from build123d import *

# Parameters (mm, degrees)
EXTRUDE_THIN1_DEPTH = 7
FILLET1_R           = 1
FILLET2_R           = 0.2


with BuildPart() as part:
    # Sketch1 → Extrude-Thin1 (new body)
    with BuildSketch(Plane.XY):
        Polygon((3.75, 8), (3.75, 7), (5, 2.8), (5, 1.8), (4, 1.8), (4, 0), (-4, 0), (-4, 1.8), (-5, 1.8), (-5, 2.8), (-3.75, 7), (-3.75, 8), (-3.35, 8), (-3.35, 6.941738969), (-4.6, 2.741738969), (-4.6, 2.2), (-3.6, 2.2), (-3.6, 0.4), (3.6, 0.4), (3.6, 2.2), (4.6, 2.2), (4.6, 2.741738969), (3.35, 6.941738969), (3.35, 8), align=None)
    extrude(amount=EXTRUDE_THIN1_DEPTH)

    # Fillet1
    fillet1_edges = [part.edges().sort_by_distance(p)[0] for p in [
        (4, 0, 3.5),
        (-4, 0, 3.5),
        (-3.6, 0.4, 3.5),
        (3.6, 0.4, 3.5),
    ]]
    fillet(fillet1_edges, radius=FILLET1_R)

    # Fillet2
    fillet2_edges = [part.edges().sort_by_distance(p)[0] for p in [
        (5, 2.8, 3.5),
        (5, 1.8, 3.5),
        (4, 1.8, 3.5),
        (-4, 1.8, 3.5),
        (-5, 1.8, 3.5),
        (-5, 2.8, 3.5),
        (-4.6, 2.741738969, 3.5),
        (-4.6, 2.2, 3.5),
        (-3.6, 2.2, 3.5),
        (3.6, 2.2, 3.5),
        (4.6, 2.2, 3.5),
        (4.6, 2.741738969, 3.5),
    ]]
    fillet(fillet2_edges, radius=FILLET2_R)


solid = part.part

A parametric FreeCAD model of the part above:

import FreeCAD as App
import Part
import Sketcher

V = App.Vector


def edges_at(feature, points):
    """Names of the edges that pass closest to the given points."""
    edges = feature.Shape.Edges
    near = lambda p: min(range(len(edges)), key=lambda i: edges[i].distToShape(Part.Vertex(*p))[0])
    return sorted({f"Edge{near(p) + 1}" for p in points})

doc = App.newDocument("Part")
body = doc.addObject("PartDesign::Body", "Body")

sketch1 = body.newObject("Sketcher::SketchObject", "Sketch")
sketch1.AttachmentSupport = (doc.getObject("XY_Plane"), [""])
sketch1.MapMode = "FlatFace"
sketch1.addGeometry([
    Part.LineSegment(V(3.75, 7, 0), V(3.75, 8, 0)),
    Part.LineSegment(V(3.75, 8, 0), V(3.35, 8, 0)),
    Part.LineSegment(V(3.35, 8, 0), V(3.35, 6.941739, 0)),
    Part.LineSegment(V(3.35, 6.941739, 0), V(4.6, 2.741739, 0)),
    Part.LineSegment(V(4.6, 2.741739, 0), V(4.6, 2.2, 0)),
    Part.LineSegment(V(4.6, 2.2, 0), V(3.6, 2.2, 0)),
    Part.LineSegment(V(3.6, 2.2, 0), V(3.6, 0.4, 0)),
    Part.LineSegment(V(3.6, 0.4, 0), V(-3.6, 0.4, 0)),
    Part.LineSegment(V(-3.6, 0.4, 0), V(-3.6, 2.2, 0)),
    Part.LineSegment(V(-3.6, 2.2, 0), V(-4.6, 2.2, 0)),
    Part.LineSegment(V(-4.6, 2.2, 0), V(-4.6, 2.741739, 0)),
    Part.LineSegment(V(-4.6, 2.741739, 0), V(-3.35, 6.941739, 0)),
    Part.LineSegment(V(-3.35, 6.941739, 0), V(-3.35, 8, 0)),
    Part.LineSegment(V(-3.35, 8, 0), V(-3.75, 8, 0)),
    Part.LineSegment(V(-3.75, 8, 0), V(-3.75, 7, 0)),
    Part.LineSegment(V(-3.75, 7, 0), V(-5, 2.8, 0)),
    Part.LineSegment(V(-5, 2.8, 0), V(-5, 1.8, 0)),
    Part.LineSegment(V(-5, 1.8, 0), V(-4, 1.8, 0)),
    Part.LineSegment(V(-4, 1.8, 0), V(-4, 0, 0)),
    Part.LineSegment(V(-4, 0, 0), V(4, 0, 0)),
    Part.LineSegment(V(4, 0, 0), V(4, 1.8, 0)),
    Part.LineSegment(V(4, 1.8, 0), V(5, 1.8, 0)),
    Part.LineSegment(V(5, 1.8, 0), V(5, 2.8, 0)),
    Part.LineSegment(V(5, 2.8, 0), V(3.75, 7, 0)),
], False)
sketch1.addConstraint([
    Sketcher.Constraint("Coincident", 0, 2, 1, 1),
    Sketcher.Constraint("Coincident", 1, 2, 2, 1),
    Sketcher.Constraint("Coincident", 2, 2, 3, 1),
    Sketcher.Constraint("Coincident", 3, 2, 4, 1),
    Sketcher.Constraint("Coincident", 4, 2, 5, 1),
    Sketcher.Constraint("Coincident", 5, 2, 6, 1),
    Sketcher.Constraint("Coincident", 6, 2, 7, 1),
    Sketcher.Constraint("Coincident", 7, 2, 8, 1),
    Sketcher.Constraint("Coincident", 8, 2, 9, 1),
    Sketcher.Constraint("Coincident", 9, 2, 10, 1),
    Sketcher.Constraint("Coincident", 10, 2, 11, 1),
    Sketcher.Constraint("Coincident", 11, 2, 12, 1),
    Sketcher.Constraint("Coincident", 12, 2, 13, 1),
    Sketcher.Constraint("Coincident", 13, 2, 14, 1),
    Sketcher.Constraint("Coincident", 14, 2, 15, 1),
    Sketcher.Constraint("Coincident", 15, 2, 16, 1),
    Sketcher.Constraint("Coincident", 16, 2, 17, 1),
    Sketcher.Constraint("Coincident", 17, 2, 18, 1),
    Sketcher.Constraint("Coincident", 18, 2, 19, 1),
    Sketcher.Constraint("Coincident", 19, 2, 20, 1),
    Sketcher.Constraint("Coincident", 20, 2, 21, 1),
    Sketcher.Constraint("Coincident", 21, 2, 22, 1),
    Sketcher.Constraint("Coincident", 22, 2, 23, 1),
    Sketcher.Constraint("Coincident", 23, 2, 0, 1),
    Sketcher.Constraint("Vertical", 0),
    Sketcher.Constraint("Horizontal", 1),
    Sketcher.Constraint("Vertical", 2),
    Sketcher.Constraint("Vertical", 4),
    Sketcher.Constraint("Horizontal", 5),
    Sketcher.Constraint("Vertical", 6),
    Sketcher.Constraint("Horizontal", 7),
    Sketcher.Constraint("Vertical", 8),
    Sketcher.Constraint("Horizontal", 9),
    Sketcher.Constraint("Vertical", 10),
    Sketcher.Constraint("Vertical", 12),
    Sketcher.Constraint("Horizontal", 13),
    Sketcher.Constraint("Vertical", 14),
    Sketcher.Constraint("Vertical", 16),
    Sketcher.Constraint("Horizontal", 17),
    Sketcher.Constraint("Vertical", 18),
    Sketcher.Constraint("Horizontal", 19),
    Sketcher.Constraint("Vertical", 20),
    Sketcher.Constraint("Horizontal", 21),
    Sketcher.Constraint("Vertical", 22),
    Sketcher.Constraint("Symmetric", 18, 2, 19, 2, -1, 1),
    Sketcher.Constraint("Symmetric", 5, 2, 8, 2, -2),
    Sketcher.Constraint("Symmetric", 3, 2, 10, 2, -2),
    Sketcher.Constraint("Symmetric", 2, 2, 11, 2, -2),
    Sketcher.Constraint("Symmetric", 0, 2, 13, 2, -2),
    Sketcher.Constraint("Symmetric", 16, 2, 21, 2, -2),
    Sketcher.Constraint("Parallel", 11, 15),
    Sketcher.Constraint("Parallel", 3, 23),
    Sketcher.Constraint("Horizontal", 15, 2, 22, 2),
    Sketcher.Constraint("Equal", 9, 17),
    Sketcher.Constraint("Equal", 21, 0),
    Sketcher.Constraint("Equal", 14, 16),
    Sketcher.Constraint("Equal", 8, 18),
    Sketcher.Constraint("Equal", 11, 15),
    Sketcher.Constraint("DistanceX", 5, 2, 5, 1, 1.0),
    Sketcher.Constraint("DistanceX", 19, 1, 19, 2, 8.0),
    Sketcher.Constraint("DistanceX", 1, 2, 1, 1, 0.4),
    Sketcher.Constraint("DistanceY", 6, 2, 6, 1, 1.8),
    Sketcher.Constraint("DistanceY", -1, 1, 0, 2, 8.0),
    Sketcher.Constraint("DistanceY", -1, 1, 4, 2, 2.2),
    Sketcher.Constraint("DistanceX", 11, 2, 2, 2, 6.7),
    Sketcher.Constraint("DistanceY", 2, 2, 2, 1, 1.058261),
])
pad1 = body.newObject("PartDesign::Pad", "Pad")
pad1.Profile = sketch1
pad1.Length = 7
doc.recompute()

fillet = body.newObject("PartDesign::Fillet", "Fillet")
fillet.Base = (pad1, edges_at(pad1, [
    (4, 0, 3.5),
    (-4, 0, 3.5),
    (-3.6, 0.4, 3.5),
    (3.6, 0.4, 3.5),
]))
fillet.Radius = 1
doc.recompute()

fillet2 = body.newObject("PartDesign::Fillet", "Fillet001")
fillet2.Base = (fillet, edges_at(fillet, [
    (5, 2.8, 3.5),
    (5, 1.8, 3.5),
    (4, 1.8, 3.5),
    (-4, 1.8, 3.5),
    (-5, 1.8, 3.5),
    (-5, 2.8, 3.5),
    (-4.6, 2.742, 3.5),
    (-4.6, 2.2, 3.5),
    (-3.6, 2.2, 3.5),
    (3.6, 2.2, 3.5),
    (4.6, 2.2, 3.5),
    (4.6, 2.742, 3.5),
]))
fillet2.Radius = 0.2

doc.recompute()
